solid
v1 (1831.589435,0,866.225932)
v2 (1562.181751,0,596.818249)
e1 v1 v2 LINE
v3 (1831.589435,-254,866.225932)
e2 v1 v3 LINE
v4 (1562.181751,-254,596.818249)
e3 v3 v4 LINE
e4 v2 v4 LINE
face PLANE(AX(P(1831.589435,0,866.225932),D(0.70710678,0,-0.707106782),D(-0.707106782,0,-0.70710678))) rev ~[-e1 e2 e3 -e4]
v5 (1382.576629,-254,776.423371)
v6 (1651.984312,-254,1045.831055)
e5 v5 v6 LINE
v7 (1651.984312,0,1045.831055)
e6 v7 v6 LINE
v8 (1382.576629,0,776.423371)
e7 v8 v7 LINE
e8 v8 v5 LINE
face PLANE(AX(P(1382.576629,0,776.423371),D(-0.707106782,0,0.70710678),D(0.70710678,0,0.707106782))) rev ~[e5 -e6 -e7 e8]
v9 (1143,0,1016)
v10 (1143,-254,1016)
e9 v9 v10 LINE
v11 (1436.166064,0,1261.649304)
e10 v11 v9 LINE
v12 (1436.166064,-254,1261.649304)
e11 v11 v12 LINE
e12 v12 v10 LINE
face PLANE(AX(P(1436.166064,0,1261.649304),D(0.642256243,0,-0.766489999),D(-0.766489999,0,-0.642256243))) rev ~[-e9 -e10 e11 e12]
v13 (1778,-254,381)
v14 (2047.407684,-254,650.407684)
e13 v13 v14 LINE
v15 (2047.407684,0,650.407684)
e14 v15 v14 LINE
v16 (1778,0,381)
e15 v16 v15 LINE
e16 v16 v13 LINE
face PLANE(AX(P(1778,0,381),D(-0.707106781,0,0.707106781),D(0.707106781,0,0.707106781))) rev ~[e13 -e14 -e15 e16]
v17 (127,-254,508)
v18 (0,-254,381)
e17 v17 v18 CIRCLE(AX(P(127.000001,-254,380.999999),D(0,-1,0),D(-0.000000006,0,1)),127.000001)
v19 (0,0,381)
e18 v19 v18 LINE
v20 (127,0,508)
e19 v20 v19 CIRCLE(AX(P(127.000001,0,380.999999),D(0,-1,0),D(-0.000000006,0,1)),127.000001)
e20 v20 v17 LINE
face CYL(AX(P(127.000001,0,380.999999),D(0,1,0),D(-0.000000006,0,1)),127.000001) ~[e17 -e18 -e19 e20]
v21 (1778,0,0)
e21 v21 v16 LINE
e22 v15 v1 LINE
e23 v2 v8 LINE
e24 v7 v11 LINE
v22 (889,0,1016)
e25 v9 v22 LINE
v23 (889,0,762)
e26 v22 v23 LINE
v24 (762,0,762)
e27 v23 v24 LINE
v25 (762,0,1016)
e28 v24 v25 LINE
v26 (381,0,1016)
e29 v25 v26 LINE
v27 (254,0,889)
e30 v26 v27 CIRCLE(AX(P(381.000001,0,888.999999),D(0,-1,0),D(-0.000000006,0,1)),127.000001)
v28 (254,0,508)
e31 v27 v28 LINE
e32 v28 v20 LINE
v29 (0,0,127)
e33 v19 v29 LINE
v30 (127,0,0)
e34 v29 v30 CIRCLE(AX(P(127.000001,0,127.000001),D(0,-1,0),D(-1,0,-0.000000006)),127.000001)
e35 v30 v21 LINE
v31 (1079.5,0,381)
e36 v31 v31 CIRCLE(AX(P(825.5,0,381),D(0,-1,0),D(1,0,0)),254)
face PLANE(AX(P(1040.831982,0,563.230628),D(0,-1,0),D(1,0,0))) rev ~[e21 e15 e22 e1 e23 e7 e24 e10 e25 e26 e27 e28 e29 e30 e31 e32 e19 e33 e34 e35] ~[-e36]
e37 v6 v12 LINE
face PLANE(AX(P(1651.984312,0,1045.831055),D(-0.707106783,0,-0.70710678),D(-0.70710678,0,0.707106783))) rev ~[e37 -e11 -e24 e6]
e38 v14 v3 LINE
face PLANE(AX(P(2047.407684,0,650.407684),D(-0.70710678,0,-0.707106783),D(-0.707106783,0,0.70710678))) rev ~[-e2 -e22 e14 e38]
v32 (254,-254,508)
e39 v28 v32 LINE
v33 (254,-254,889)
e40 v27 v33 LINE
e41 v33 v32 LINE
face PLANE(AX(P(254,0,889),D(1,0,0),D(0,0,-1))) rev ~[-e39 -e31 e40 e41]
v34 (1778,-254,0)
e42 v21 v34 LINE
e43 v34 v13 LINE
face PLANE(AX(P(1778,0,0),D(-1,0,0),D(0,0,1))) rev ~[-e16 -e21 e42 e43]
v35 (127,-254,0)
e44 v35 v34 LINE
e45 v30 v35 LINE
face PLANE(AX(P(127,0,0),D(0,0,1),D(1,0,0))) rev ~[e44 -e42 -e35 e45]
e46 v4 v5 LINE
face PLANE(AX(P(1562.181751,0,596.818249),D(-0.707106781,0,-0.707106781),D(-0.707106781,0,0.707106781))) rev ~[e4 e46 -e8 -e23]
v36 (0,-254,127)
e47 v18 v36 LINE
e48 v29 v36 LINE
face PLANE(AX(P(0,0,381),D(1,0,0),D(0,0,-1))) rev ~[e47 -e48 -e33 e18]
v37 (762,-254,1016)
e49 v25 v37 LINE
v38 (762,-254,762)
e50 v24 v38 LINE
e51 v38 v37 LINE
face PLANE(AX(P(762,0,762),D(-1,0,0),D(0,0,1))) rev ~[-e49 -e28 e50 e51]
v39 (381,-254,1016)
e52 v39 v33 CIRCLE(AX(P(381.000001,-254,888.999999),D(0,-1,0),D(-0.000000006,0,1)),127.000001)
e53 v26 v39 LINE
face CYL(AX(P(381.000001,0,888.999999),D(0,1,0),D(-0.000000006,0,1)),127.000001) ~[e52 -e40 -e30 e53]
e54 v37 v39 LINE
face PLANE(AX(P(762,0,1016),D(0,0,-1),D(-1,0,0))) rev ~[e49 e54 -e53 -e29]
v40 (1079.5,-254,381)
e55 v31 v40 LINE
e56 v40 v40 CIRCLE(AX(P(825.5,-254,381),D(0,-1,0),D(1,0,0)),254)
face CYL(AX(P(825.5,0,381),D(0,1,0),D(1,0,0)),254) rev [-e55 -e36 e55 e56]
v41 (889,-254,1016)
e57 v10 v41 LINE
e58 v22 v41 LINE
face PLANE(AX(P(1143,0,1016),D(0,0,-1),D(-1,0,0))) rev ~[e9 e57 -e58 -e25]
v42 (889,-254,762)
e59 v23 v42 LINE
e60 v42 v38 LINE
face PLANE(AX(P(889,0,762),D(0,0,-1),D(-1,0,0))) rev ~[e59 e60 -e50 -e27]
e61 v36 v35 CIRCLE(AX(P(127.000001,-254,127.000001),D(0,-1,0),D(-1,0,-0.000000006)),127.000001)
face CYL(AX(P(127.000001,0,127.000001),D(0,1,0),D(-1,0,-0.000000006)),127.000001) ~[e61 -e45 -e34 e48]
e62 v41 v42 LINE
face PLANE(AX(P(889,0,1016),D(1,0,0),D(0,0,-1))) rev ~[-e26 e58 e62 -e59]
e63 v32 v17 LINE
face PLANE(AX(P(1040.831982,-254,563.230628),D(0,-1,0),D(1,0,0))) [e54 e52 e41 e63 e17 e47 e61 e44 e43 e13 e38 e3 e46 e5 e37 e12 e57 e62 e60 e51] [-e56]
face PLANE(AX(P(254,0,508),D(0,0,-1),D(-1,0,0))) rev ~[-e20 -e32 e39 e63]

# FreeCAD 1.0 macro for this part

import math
import FreeCAD as App
import Part
import Sketcher
Q = App.Units.Quantity

doc = App.newDocument("Part")
body = doc.addObject("PartDesign::Body", "Body")

sketch1 = body.newObject("Sketcher::SketchObject", "Sketch")
sketch1.AttachmentSupport = (doc.getObject("XZ_Plane"), [""])
sketch1.MapMode = "FlatFace"
sketch1.addGeometry(Part.ArcOfCircle(Part.Circle(App.Vector(127, 127, 0), App.Vector(0, 0, 1), 127), math.radians(-180), math.radians(-90)), False)
sketch1.addGeometry(Part.LineSegment(App.Vector(127, 0, 0), App.Vector(1778, 0, 0)), False)
sketch1.addGeometry(Part.LineSegment(App.Vector(1778, 0, 0), App.Vector(1778, 381, 0)), False)
sketch1.addGeometry(Part.LineSegment(App.Vector(1778, 381, 0), App.Vector(2047, 650, 0)), False)
sketch1.addGeometry(Part.LineSegment(App.Vector(2047, 650, 0), App.Vector(1832, 866, 0)), False)
sketch1.addGeometry(Part.LineSegment(App.Vector(1832, 866, 0), App.Vector(1562, 597, 0)), False)
sketch1.addGeometry(Part.LineSegment(App.Vector(1562, 597, 0), App.Vector(1383, 776, 0)), False)
sketch1.addGeometry(Part.LineSegment(App.Vector(1383, 776, 0), App.Vector(1652, 1046, 0)), False)
sketch1.addGeometry(Part.LineSegment(App.Vector(1652, 1046, 0), App.Vector(1436, 1262, 0)), False)
sketch1.addGeometry(Part.LineSegment(App.Vector(1436, 1262, 0), App.Vector(1143, 1016, 0)), False)
sketch1.addGeometry(Part.LineSegment(App.Vector(1143, 1016, 0), App.Vector(889, 1016, 0)), False)
sketch1.addGeometry(Part.LineSegment(App.Vector(889, 1016, 0), App.Vector(889, 762, 0)), False)
sketch1.addGeometry(Part.LineSegment(App.Vector(889, 762, 0), App.Vector(762, 762, 0)), False)
sketch1.addGeometry(Part.LineSegment(App.Vector(762, 762, 0), App.Vector(762, 1016, 0)), False)
sketch1.addGeometry(Part.LineSegment(App.Vector(762, 1016, 0), App.Vector(381, 1016, 0)), False)
sketch1.addGeometry(Part.ArcOfCircle(Part.Circle(App.Vector(381, 889, 0), App.Vector(0, 0, 1), 127), math.radians(90), math.radians(180)), False)
sketch1.addGeometry(Part.LineSegment(App.Vector(254, 889, 0), App.Vector(254, 508, 0)), False)
sketch1.addGeometry(Part.LineSegment(App.Vector(254, 508, 0), App.Vector(127, 508, 0)), False)
sketch1.addGeometry(Part.ArcOfCircle(Part.Circle(App.Vector(127, 381, 0), App.Vector(0, 0, 1), 127), math.radians(90), math.radians(180)), False)
sketch1.addGeometry(Part.LineSegment(App.Vector(0, 381, 0), App.Vector(0, 127, 0)), False)
sketch1.addGeometry(Part.Circle(App.Vector(826, 381, 0), App.Vector(0, 0, 1), 254), False)
sketch1.addConstraint(Sketcher.Constraint("Tangent", 0, 2, 1, 1))
sketch1.addConstraint(Sketcher.Constraint("Coincident", 1, 2, 2, 1))
sketch1.addConstraint(Sketcher.Constraint("Coincident", 2, 2, 3, 1))
sketch1.addConstraint(Sketcher.Constraint("Coincident", 3, 2, 4, 1))
sketch1.addConstraint(Sketcher.Constraint("Coincident", 4, 2, 5, 1))
sketch1.addConstraint(Sketcher.Constraint("Coincident", 5, 2, 6, 1))
sketch1.addConstraint(Sketcher.Constraint("Coincident", 6, 2, 7, 1))
sketch1.addConstraint(Sketcher.Constraint("Coincident", 7, 2, 8, 1))
sketch1.addConstraint(Sketcher.Constraint("Coincident", 8, 2, 9, 1))
sketch1.addConstraint(Sketcher.Constraint("Coincident", 9, 2, 10, 1))
sketch1.addConstraint(Sketcher.Constraint("Coincident", 10, 2, 11, 1))
sketch1.addConstraint(Sketcher.Constraint("Coincident", 11, 2, 12, 1))
sketch1.addConstraint(Sketcher.Constraint("Coincident", 12, 2, 13, 1))
sketch1.addConstraint(Sketcher.Constraint("Coincident", 13, 2, 14, 1))
sketch1.addConstraint(Sketcher.Constraint("Tangent", 14, 2, 15, 1))
sketch1.addConstraint(Sketcher.Constraint("Tangent", 15, 2, 16, 1))
sketch1.addConstraint(Sketcher.Constraint("Coincident", 16, 2, 17, 1))
sketch1.addConstraint(Sketcher.Constraint("Tangent", 17, 2, 18, 1))
sketch1.addConstraint(Sketcher.Constraint("Tangent", 18, 2, 19, 1))
sketch1.addConstraint(Sketcher.Constraint("Tangent", 19, 2, 0, 1))
sketch1.addConstraint(Sketcher.Constraint("Horizontal", 1))
sketch1.addConstraint(Sketcher.Constraint("Vertical", 2))
sketch1.addConstraint(Sketcher.Constraint("Horizontal", 10))
sketch1.addConstraint(Sketcher.Constraint("Vertical", 11))
sketch1.addConstraint(Sketcher.Constraint("Horizontal", 12))
sketch1.addConstraint(Sketcher.Constraint("Vertical", 13))
sketch1.addConstraint(Sketcher.Constraint("Horizontal", 14))
sketch1.addConstraint(Sketcher.Constraint("Vertical", 16))
sketch1.addConstraint(Sketcher.Constraint("Horizontal", 17))
sketch1.addConstraint(Sketcher.Constraint("Vertical", 19))
sketch1.addConstraint(Sketcher.Constraint("Equal", 0, 15))
sketch1.addConstraint(Sketcher.Constraint("Equal", 15, 18))
sketch1.addConstraint(Sketcher.Constraint("PointOnObject", 0, 2, -1))
sketch1.addConstraint(Sketcher.Constraint("PointOnObject", 18, 2, -2))
sketch1.addConstraint(Sketcher.Constraint("Perpendicular", 3, 4))
sketch1.addConstraint(Sketcher.Constraint("Perpendicular", 4, 5))
sketch1.addConstraint(Sketcher.Constraint("Perpendicular", 5, 6))
sketch1.addConstraint(Sketcher.Constraint("Perpendicular", 6, 7))
sketch1.addConstraint(Sketcher.Constraint("Perpendicular", 7, 8))
sketch1.addConstraint(Sketcher.Constraint("Horizontal", 18, 3, 20, 3))
sketch1.addConstraint(Sketcher.Constraint("Horizontal", 20, 3, 2, 2))
sketch1.addConstraint(Sketcher.Constraint("Horizontal", 10, 2, 13, 2))
sketch1.addConstraint(Sketcher.Constraint("Equal", 12, 17))
sketch1.addConstraint(Sketcher.Constraint("Equal", 14, 2))
sketch1.addConstraint(Sketcher.Constraint("Equal", 10, 11))
sketch1.addConstraint(Sketcher.Constraint("Equal", 2, 16))
sketch1.addConstraint(Sketcher.Constraint("Equal", 13, 19))
sketch1.addConstraint(Sketcher.Constraint("Equal", 3, 5))
sketch1.addConstraint(Sketcher.Constraint("Equal", 5, 7))
sketch1.addConstraint(Sketcher.Constraint("Equal", 4, 8))
sketch1.addConstraint(Sketcher.Constraint("Diameter", 20, Q("20 in")))
sketch1.addConstraint(Sketcher.Constraint("Radius", 0, Q("5 in")))
sketch1.addConstraint(Sketcher.Constraint("DistanceX", 1, 1, 1, 2, Q("65 in")))
sketch1.addConstraint(Sketcher.Constraint("DistanceX", 10, 2, 10, 1, Q("10 in")))
sketch1.addConstraint(Sketcher.Constraint("DistanceX", 12, 2, 12, 1, Q("5 in")))
sketch1.addConstraint(Sketcher.Constraint("Distance", 3, Q("15 in")))
sketch1.addConstraint(Sketcher.Constraint("Distance", 6, Q("10 in")))
sketch1.addConstraint(Sketcher.Constraint("Angle", 3, Q("45 deg")))
sketch1.addConstraint(Sketcher.Constraint("DistanceX", -1, 1, 20, 3, Q("32.5 in")))
sketch1.addConstraint(Sketcher.Constraint("DistanceY", -1, 1, 4, 2, 866.225932))
pad1 = body.newObject("PartDesign::Pad", "Pad")
pad1.Profile = sketch1
pad1.Length = Q("10 in")

doc.recompute()
